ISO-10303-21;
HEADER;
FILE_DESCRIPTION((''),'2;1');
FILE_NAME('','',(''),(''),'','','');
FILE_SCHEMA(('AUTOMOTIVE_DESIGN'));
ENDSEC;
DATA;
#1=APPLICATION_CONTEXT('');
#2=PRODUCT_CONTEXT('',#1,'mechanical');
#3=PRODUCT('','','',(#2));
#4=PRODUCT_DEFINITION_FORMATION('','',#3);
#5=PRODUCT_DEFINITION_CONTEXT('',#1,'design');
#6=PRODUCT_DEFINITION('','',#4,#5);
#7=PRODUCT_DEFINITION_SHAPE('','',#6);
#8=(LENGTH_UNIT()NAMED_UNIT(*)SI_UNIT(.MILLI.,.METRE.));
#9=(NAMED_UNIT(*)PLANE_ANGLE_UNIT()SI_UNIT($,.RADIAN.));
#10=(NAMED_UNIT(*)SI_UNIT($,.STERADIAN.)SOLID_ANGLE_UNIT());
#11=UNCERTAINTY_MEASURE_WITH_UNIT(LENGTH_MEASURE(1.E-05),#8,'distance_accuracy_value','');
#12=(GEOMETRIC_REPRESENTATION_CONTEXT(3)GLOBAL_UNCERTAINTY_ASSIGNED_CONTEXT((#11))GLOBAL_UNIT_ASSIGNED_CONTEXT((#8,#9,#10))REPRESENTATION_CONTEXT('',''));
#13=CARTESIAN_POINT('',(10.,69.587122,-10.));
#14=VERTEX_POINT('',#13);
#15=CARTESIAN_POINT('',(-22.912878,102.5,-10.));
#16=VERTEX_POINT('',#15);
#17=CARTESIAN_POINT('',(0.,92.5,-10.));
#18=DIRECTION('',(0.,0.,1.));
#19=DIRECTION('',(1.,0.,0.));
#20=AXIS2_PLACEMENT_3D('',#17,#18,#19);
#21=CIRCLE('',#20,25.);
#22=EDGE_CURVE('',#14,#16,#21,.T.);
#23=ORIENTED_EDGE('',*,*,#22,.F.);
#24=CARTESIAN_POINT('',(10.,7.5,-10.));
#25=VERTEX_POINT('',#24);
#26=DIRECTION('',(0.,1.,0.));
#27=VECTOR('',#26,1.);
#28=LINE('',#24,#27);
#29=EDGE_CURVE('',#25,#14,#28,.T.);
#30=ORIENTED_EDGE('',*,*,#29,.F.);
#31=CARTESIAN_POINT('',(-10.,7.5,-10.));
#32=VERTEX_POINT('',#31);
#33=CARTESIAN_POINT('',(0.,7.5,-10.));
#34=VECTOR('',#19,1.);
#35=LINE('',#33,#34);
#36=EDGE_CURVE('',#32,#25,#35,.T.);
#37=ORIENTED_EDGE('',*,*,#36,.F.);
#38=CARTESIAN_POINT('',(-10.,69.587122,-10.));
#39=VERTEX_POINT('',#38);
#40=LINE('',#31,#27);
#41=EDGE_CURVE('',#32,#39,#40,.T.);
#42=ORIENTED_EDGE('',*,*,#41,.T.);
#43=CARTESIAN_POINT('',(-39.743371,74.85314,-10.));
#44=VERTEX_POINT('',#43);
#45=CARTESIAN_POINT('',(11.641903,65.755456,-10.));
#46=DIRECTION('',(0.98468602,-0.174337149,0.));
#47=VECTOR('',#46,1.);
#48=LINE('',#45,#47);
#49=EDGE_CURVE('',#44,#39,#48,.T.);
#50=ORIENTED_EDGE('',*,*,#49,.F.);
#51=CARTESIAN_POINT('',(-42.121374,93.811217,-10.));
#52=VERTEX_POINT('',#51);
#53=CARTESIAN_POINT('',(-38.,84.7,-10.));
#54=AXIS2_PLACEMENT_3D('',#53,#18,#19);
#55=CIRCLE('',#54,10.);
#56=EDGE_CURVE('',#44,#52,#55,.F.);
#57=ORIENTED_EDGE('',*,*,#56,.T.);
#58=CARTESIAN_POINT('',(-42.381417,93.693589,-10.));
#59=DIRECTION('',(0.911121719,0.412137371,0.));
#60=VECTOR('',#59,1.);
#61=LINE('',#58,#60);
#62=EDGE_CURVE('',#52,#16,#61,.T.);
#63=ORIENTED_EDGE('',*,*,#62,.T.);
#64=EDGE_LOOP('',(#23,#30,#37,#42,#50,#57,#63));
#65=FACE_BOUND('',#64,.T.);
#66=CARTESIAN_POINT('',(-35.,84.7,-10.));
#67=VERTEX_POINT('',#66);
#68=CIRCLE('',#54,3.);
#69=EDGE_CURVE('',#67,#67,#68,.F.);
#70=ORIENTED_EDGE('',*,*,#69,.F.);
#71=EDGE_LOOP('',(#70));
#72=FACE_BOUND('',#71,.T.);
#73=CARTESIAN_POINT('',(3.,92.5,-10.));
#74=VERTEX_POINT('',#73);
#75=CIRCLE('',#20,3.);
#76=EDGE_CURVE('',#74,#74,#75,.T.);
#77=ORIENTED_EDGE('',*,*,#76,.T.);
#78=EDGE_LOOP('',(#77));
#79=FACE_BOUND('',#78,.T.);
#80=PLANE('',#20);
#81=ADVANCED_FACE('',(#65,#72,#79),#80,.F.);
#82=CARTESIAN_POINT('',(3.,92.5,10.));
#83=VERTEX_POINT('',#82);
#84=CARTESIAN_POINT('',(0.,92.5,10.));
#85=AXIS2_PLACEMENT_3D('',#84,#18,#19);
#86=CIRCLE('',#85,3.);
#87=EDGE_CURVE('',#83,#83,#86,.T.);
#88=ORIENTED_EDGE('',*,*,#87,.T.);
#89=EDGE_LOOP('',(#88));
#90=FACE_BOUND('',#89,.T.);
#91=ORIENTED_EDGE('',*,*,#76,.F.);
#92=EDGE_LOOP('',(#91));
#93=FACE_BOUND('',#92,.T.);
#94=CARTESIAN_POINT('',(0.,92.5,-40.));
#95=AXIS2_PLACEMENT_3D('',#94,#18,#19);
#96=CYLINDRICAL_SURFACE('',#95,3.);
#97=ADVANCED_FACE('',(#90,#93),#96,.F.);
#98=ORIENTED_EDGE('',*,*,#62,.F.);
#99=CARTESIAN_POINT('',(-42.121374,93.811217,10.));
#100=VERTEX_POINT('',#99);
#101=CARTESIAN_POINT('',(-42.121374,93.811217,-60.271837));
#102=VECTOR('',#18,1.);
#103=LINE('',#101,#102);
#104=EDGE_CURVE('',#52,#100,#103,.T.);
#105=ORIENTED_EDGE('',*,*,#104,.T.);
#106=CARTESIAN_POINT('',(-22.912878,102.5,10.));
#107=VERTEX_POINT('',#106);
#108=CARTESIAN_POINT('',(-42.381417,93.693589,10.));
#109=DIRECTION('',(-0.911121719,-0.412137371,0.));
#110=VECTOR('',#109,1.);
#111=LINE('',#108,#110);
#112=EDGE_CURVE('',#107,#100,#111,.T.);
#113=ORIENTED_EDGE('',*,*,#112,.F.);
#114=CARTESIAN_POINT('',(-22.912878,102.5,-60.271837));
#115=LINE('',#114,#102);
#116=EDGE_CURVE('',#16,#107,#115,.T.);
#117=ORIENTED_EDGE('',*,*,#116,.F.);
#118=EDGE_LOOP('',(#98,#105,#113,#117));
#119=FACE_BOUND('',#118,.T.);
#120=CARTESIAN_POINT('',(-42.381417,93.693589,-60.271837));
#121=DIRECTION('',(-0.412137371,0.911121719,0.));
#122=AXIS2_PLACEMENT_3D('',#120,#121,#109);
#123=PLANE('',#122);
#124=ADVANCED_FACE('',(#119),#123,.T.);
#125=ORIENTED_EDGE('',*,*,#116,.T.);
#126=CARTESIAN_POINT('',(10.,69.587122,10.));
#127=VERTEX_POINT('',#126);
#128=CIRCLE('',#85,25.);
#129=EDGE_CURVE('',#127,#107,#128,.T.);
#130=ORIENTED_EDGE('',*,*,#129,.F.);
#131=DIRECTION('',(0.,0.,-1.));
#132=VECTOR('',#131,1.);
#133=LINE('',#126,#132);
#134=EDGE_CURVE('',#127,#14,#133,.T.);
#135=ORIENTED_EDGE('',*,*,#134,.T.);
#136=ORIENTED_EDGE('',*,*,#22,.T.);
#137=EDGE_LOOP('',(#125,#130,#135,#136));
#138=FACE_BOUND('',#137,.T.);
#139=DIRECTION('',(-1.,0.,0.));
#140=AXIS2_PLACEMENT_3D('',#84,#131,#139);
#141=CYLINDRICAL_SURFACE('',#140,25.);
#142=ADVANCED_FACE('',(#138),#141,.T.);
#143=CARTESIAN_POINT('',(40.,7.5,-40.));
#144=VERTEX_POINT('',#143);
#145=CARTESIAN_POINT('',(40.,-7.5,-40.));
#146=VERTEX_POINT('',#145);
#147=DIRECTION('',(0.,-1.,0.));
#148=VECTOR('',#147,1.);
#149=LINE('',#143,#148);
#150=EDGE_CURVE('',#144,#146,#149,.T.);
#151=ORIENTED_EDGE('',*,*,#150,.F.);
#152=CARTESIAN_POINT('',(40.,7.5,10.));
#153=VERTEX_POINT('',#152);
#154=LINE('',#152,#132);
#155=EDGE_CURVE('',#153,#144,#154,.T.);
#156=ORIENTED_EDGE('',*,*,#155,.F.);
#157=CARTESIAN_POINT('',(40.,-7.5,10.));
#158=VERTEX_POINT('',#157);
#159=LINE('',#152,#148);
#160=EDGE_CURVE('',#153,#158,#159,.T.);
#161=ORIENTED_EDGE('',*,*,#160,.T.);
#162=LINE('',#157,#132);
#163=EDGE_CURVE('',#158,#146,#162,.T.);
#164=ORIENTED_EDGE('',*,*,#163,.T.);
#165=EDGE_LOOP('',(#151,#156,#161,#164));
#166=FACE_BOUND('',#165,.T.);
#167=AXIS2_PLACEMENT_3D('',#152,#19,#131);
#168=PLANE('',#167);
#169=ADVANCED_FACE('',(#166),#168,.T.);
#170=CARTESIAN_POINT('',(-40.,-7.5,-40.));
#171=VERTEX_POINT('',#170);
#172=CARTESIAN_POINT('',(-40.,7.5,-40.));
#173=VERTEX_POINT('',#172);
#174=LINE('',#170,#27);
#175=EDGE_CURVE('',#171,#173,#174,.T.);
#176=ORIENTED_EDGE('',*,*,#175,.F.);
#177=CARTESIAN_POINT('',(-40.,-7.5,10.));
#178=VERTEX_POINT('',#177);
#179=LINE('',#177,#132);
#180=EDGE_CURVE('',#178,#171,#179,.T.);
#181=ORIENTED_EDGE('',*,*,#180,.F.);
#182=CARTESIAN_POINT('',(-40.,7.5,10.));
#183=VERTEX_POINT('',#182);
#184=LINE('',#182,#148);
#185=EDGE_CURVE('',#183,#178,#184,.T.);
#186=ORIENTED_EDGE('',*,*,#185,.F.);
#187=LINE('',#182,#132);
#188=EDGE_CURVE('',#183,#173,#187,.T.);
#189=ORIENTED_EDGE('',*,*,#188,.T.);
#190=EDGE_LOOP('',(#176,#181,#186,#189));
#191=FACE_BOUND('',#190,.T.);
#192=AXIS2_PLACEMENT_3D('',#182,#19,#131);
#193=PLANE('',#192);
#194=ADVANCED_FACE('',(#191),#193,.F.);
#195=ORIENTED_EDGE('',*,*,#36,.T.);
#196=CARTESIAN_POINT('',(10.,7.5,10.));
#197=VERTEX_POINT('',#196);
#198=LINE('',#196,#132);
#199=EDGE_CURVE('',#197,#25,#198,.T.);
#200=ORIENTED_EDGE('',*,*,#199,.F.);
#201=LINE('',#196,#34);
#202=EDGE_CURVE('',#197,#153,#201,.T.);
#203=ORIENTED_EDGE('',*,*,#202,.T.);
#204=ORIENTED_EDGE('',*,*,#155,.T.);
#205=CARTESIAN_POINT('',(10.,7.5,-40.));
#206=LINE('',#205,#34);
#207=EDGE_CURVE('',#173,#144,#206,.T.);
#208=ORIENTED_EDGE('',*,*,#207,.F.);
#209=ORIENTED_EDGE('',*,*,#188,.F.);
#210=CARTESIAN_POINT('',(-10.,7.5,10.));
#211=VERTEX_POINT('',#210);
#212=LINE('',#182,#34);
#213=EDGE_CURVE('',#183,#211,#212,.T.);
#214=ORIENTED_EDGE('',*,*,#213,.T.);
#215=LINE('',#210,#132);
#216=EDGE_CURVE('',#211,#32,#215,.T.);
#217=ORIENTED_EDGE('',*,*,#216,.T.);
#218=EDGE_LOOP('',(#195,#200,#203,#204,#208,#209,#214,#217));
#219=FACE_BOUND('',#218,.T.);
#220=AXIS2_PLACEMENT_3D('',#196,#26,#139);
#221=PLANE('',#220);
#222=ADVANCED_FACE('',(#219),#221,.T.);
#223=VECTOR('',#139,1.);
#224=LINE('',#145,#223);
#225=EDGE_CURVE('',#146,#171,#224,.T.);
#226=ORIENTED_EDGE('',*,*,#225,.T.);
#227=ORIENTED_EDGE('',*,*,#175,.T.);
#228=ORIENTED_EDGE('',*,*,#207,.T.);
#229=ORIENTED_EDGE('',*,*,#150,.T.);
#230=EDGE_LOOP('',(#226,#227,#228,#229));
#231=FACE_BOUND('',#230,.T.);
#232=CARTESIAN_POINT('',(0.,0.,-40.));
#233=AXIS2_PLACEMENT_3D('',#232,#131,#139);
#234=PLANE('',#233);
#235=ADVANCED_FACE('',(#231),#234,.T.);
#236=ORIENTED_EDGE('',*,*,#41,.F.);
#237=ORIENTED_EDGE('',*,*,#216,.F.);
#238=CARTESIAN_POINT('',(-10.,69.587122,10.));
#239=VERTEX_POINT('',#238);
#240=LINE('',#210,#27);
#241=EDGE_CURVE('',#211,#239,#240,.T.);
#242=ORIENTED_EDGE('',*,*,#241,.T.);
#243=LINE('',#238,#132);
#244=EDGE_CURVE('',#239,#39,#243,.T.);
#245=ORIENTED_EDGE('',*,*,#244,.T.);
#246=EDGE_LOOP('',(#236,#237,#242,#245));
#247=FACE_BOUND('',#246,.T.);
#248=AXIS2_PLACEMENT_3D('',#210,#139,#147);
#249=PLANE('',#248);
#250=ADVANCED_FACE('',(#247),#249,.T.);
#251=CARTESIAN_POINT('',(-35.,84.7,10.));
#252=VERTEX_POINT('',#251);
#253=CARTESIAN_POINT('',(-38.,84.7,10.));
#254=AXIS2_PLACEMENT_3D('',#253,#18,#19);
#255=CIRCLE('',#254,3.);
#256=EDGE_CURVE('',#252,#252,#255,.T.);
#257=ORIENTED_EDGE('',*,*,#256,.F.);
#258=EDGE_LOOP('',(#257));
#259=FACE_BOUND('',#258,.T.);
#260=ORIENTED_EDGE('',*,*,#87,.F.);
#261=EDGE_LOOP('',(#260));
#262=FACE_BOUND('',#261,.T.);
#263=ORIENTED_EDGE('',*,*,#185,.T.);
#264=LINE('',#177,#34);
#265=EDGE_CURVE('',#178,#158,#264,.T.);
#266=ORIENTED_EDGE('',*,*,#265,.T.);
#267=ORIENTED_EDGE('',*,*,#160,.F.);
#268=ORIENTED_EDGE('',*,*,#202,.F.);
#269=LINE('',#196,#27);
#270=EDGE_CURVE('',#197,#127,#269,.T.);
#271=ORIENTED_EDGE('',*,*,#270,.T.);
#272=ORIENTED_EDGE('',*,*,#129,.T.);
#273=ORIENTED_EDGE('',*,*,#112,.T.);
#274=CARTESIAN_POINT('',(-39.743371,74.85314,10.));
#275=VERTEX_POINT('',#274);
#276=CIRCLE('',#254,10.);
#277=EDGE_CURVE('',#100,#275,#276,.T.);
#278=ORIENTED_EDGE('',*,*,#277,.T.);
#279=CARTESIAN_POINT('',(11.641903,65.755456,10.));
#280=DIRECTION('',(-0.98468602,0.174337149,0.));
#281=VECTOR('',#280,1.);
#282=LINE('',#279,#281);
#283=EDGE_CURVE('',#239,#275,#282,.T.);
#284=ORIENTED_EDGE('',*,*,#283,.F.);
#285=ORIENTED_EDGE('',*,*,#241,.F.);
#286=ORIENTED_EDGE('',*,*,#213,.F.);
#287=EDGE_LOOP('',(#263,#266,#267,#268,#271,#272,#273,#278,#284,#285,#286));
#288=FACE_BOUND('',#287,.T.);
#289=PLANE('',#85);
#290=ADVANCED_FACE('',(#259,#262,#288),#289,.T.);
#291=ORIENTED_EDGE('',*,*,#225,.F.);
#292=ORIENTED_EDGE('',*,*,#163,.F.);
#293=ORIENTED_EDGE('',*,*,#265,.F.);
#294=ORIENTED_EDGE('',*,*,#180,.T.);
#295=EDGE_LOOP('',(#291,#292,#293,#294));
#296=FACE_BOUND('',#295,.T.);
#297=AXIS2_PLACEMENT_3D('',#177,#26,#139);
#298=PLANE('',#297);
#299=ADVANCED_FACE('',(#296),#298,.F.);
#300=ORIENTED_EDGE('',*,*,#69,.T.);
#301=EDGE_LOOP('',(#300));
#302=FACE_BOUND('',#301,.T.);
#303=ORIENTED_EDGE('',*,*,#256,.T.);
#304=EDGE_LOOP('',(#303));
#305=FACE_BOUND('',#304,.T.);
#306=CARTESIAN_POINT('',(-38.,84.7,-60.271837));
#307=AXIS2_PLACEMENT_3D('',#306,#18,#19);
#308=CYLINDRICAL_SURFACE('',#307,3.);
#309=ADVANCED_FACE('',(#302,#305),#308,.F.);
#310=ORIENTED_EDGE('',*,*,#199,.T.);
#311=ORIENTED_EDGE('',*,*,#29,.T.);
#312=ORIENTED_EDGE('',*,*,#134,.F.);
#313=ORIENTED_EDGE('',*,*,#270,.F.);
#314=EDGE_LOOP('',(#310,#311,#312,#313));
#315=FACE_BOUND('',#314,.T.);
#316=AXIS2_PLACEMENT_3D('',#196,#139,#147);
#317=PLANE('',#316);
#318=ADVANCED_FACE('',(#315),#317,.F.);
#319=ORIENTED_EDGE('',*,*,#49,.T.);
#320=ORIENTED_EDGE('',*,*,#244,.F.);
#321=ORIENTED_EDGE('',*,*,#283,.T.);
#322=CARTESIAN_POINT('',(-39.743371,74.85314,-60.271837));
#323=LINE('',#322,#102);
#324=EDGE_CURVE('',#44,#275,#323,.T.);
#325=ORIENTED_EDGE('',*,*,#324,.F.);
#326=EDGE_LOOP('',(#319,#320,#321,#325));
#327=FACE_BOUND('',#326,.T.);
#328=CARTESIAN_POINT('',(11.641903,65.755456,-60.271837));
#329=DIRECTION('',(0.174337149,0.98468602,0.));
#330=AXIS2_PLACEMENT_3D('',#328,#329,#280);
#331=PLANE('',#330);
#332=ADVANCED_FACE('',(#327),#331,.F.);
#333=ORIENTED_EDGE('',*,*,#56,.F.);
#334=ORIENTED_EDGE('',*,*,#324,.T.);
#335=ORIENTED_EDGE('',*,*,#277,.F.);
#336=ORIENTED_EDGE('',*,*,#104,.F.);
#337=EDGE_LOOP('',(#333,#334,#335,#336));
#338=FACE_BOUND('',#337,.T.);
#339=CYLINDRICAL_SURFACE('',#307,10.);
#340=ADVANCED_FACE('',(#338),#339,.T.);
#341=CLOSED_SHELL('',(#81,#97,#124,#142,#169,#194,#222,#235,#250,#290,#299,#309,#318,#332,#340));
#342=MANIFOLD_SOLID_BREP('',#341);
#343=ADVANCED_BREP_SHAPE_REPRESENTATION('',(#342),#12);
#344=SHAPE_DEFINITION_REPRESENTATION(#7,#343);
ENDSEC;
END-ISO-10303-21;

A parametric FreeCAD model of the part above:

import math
import FreeCAD as App
import Part
import Sketcher
from FreeCAD import Vector

doc = App.newDocument("Part")
body = doc.addObject("PartDesign::Body", "Body")

# Sketch on XY plane
sketch1 = body.newObject("Sketcher::SketchObject", "Sketch")
sketch1.AttachmentSupport = (doc.getObject("XY_Plane"), [""])
sketch1.MapMode = "FlatFace"
sketch1.addGeometry(Part.LineSegment(Vector(-10, 8, 0), Vector(-40, 8, 0)), False)
sketch1.addGeometry(Part.LineSegment(Vector(-40, 8, 0), Vector(-40, -8, 0)), False)
sketch1.addGeometry(Part.LineSegment(Vector(-40, -8, 0), Vector(40, -8, 0)), False)
sketch1.addGeometry(Part.LineSegment(Vector(40, -8, 0), Vector(40, 8, 0)), False)
sketch1.addGeometry(Part.LineSegment(Vector(40, 8, 0), Vector(10, 8, 0)), False)
sketch1.addGeometry(Part.LineSegment(Vector(10, 8, 0), Vector(10, 70, 0)), False)
sketch1.addGeometry(Part.ArcOfCircle(Part.Circle(Vector(0, 92, 0), Vector(0, 0, 1), 25), math.radians(-66), math.radians(246)), False)
sketch1.addGeometry(Part.LineSegment(Vector(-10, 70, 0), Vector(-10, 8, 0)), False)
sketch1.addConstraint(Sketcher.Constraint("Coincident", 0, 2, 1, 1))
sketch1.addConstraint(Sketcher.Constraint("Coincident", 1, 2, 2, 1))
sketch1.addConstraint(Sketcher.Constraint("Coincident", 2, 2, 3, 1))
sketch1.addConstraint(Sketcher.Constraint("Coincident", 3, 2, 4, 1))
sketch1.addConstraint(Sketcher.Constraint("Coincident", 4, 2, 5, 1))
sketch1.addConstraint(Sketcher.Constraint("Coincident", 5, 2, 6, 1))
sketch1.addConstraint(Sketcher.Constraint("Coincident", 6, 2, 7, 1))
sketch1.addConstraint(Sketcher.Constraint("Coincident", 7, 2, 0, 1))
sketch1.addConstraint(Sketcher.Constraint("Horizontal", 0))
sketch1.addConstraint(Sketcher.Constraint("Vertical", 1))
sketch1.addConstraint(Sketcher.Constraint("Horizontal", 2))
sketch1.addConstraint(Sketcher.Constraint("Vertical", 3))
sketch1.addConstraint(Sketcher.Constraint("Horizontal", 4))
sketch1.addConstraint(Sketcher.Constraint("Vertical", 5))
sketch1.addConstraint(Sketcher.Constraint("Vertical", 7))
sketch1.addConstraint(Sketcher.Constraint("Symmetric", 0, 2, 2, 2, -1, 1))
sketch1.addConstraint(Sketcher.Constraint("Symmetric", 5, 2, 6, 2, -2))
sketch1.addConstraint(Sketcher.Constraint("Horizontal", 0, 2, 3, 2))
sketch1.addConstraint(Sketcher.Constraint("Radius", 6, 25.0))
sketch1.addConstraint(Sketcher.Constraint("DistanceX", 0, 2, 0, 1, 30.0))
sketch1.addConstraint(Sketcher.Constraint("DistanceX", 2, 1, 2, 2, 80.0))
sketch1.addConstraint(Sketcher.Constraint("DistanceY", 1, 2, 1, 1, 15.0))
sketch1.addConstraint(Sketcher.Constraint("DistanceY", 0, 2, 6, 3, 85.0))
pad1 = body.newObject("PartDesign::Pad", "Pad")
pad1.Profile = sketch1
pad1.Length = 20
pad1.Midplane = True

# Sketch on XY plane
sketch2 = body.newObject("Sketcher::SketchObject", "Sketch001")
sketch2.AttachmentSupport = (doc.getObject("XY_Plane"), [""])
sketch2.MapMode = "FlatFace"
sketch2.addGeometry(Part.LineSegment(Vector(-40, 8, 0), Vector(40, 8, 0)), False)
sketch2.addGeometry(Part.LineSegment(Vector(40, 8, 0), Vector(40, -8, 0)), False)
sketch2.addGeometry(Part.LineSegment(Vector(40, -8, 0), Vector(-40, -8, 0)), False)
sketch2.addGeometry(Part.LineSegment(Vector(-40, -8, 0), Vector(-40, 8, 0)), False)
sketch2.addConstraint(Sketcher.Constraint("Coincident", 0, 2, 1, 1))
sketch2.addConstraint(Sketcher.Constraint("Coincident", 1, 2, 2, 1))
sketch2.addConstraint(Sketcher.Constraint("Coincident", 2, 2, 3, 1))
sketch2.addConstraint(Sketcher.Constraint("Coincident", 3, 2, 0, 1))
sketch2.addConstraint(Sketcher.Constraint("Horizontal", 0))
sketch2.addConstraint(Sketcher.Constraint("Vertical", 1))
sketch2.addConstraint(Sketcher.Constraint("Horizontal", 2))
sketch2.addConstraint(Sketcher.Constraint("Vertical", 3))
sketch2.addConstraint(Sketcher.Constraint("Symmetric", 0, 2, 2, 2, -1, 1))
sketch2.addConstraint(Sketcher.Constraint("DistanceX", 0, 1, 0, 2, 80.0))
sketch2.addConstraint(Sketcher.Constraint("DistanceY", 1, 2, 1, 1, 15.0))
pad2 = body.newObject("PartDesign::Pad", "Pad001")
pad2.Profile = sketch2
pad2.Length = 40
pad2.Reversed = True

# Sketch on XY plane
sketch3 = body.newObject("Sketcher::SketchObject", "Sketch002")
sketch3.AttachmentSupport = (doc.getObject("XY_Plane"), [""])
sketch3.MapMode = "FlatFace"
sketch3.AttachmentOffset = App.Placement(Vector(0, 0, 10), App.Rotation())
sketch3.addGeometry(Part.Circle(Vector(0, 92.5, 0), Vector(0, 0, 1), 3), False)
sketch3.addConstraint(Sketcher.Constraint("PointOnObject", 0, 3, -2))
sketch3.addConstraint(Sketcher.Constraint("Diameter", 0, 6.0))
sketch3.addConstraint(Sketcher.Constraint("DistanceY", -1, 1, 0, 3, 92.5))
pocket1 = body.newObject("PartDesign::Pocket", "Pocket")
pocket1.Profile = sketch3
pocket1.Type = "ThroughAll"

# Sketch on XY plane
sketch4 = body.newObject("Sketcher::SketchObject", "Sketch003")
sketch4.AttachmentSupport = (doc.getObject("XY_Plane"), [""])
sketch4.MapMode = "FlatFace"
sketch4.AttachmentOffset = App.Placement(Vector(0, 0, 10), App.Rotation())
sketch4.addGeometry(Part.ArcOfCircle(Part.Circle(Vector(0, 92.5, 0), Vector(0, 0, 1), 25), math.radians(156), math.radians(246)), False)
sketch4.addGeometry(Part.LineSegment(Vector(-22.9, 102.5, 0), Vector(-42.1, 93.8, 0)), False)
sketch4.addGeometry(Part.ArcOfCircle(Part.Circle(Vector(-38, 84.7, 0), Vector(0, 0, 1), 10), math.radians(114), math.radians(260)), False)
sketch4.addGeometry(Part.LineSegment(Vector(-39.7, 74.9, 0), Vector(-10, 69.6, 0)), False)
sketch4.addGeometry(Part.Circle(Vector(-38, 84.7, 0), Vector(0, 0, 1), 3), False)
sketch4.addConstraint(Sketcher.Constraint("Coincident", 0, 1, 1, 1))
sketch4.addConstraint(Sketcher.Constraint("Tangent", 1, 2, 2, 1))
sketch4.addConstraint(Sketcher.Constraint("Tangent", 2, 2, 3, 1))
sketch4.addConstraint(Sketcher.Constraint("Coincident", 3, 2, 0, 2))
sketch4.addConstraint(Sketcher.Constraint("Coincident", 4, 3, 2, 3))
sketch4.addConstraint(Sketcher.Constraint("PointOnObject", 0, 3, -2))
sketch4.addConstraint(Sketcher.Constraint("Diameter", 4, 6.0))
sketch4.addConstraint(Sketcher.Constraint("Radius", 0, 25.0))
sketch4.addConstraint(Sketcher.Constraint("Radius", 2, 10.0))
sketch4.addConstraint(Sketcher.Constraint("DistanceX", 2, 3, -1, 1, 38.0))
sketch4.addConstraint(Sketcher.Constraint("DistanceX", 3, 2, -1, 1, 10.0))
sketch4.addConstraint(Sketcher.Constraint("DistanceY", 0, 3, 0, 1, 10.0))
sketch4.addConstraint(Sketcher.Constraint("DistanceY", -1, 1, 0, 3, 92.5))
sketch4.addConstraint(Sketcher.Constraint("DistanceY", -1, 1, 2, 3, 84.7))
pad3 = body.newObject("PartDesign::Pad", "Pad002")
pad3.Profile = sketch4
pad3.Length = 20
pad3.Reversed = True

doc.recompute()
